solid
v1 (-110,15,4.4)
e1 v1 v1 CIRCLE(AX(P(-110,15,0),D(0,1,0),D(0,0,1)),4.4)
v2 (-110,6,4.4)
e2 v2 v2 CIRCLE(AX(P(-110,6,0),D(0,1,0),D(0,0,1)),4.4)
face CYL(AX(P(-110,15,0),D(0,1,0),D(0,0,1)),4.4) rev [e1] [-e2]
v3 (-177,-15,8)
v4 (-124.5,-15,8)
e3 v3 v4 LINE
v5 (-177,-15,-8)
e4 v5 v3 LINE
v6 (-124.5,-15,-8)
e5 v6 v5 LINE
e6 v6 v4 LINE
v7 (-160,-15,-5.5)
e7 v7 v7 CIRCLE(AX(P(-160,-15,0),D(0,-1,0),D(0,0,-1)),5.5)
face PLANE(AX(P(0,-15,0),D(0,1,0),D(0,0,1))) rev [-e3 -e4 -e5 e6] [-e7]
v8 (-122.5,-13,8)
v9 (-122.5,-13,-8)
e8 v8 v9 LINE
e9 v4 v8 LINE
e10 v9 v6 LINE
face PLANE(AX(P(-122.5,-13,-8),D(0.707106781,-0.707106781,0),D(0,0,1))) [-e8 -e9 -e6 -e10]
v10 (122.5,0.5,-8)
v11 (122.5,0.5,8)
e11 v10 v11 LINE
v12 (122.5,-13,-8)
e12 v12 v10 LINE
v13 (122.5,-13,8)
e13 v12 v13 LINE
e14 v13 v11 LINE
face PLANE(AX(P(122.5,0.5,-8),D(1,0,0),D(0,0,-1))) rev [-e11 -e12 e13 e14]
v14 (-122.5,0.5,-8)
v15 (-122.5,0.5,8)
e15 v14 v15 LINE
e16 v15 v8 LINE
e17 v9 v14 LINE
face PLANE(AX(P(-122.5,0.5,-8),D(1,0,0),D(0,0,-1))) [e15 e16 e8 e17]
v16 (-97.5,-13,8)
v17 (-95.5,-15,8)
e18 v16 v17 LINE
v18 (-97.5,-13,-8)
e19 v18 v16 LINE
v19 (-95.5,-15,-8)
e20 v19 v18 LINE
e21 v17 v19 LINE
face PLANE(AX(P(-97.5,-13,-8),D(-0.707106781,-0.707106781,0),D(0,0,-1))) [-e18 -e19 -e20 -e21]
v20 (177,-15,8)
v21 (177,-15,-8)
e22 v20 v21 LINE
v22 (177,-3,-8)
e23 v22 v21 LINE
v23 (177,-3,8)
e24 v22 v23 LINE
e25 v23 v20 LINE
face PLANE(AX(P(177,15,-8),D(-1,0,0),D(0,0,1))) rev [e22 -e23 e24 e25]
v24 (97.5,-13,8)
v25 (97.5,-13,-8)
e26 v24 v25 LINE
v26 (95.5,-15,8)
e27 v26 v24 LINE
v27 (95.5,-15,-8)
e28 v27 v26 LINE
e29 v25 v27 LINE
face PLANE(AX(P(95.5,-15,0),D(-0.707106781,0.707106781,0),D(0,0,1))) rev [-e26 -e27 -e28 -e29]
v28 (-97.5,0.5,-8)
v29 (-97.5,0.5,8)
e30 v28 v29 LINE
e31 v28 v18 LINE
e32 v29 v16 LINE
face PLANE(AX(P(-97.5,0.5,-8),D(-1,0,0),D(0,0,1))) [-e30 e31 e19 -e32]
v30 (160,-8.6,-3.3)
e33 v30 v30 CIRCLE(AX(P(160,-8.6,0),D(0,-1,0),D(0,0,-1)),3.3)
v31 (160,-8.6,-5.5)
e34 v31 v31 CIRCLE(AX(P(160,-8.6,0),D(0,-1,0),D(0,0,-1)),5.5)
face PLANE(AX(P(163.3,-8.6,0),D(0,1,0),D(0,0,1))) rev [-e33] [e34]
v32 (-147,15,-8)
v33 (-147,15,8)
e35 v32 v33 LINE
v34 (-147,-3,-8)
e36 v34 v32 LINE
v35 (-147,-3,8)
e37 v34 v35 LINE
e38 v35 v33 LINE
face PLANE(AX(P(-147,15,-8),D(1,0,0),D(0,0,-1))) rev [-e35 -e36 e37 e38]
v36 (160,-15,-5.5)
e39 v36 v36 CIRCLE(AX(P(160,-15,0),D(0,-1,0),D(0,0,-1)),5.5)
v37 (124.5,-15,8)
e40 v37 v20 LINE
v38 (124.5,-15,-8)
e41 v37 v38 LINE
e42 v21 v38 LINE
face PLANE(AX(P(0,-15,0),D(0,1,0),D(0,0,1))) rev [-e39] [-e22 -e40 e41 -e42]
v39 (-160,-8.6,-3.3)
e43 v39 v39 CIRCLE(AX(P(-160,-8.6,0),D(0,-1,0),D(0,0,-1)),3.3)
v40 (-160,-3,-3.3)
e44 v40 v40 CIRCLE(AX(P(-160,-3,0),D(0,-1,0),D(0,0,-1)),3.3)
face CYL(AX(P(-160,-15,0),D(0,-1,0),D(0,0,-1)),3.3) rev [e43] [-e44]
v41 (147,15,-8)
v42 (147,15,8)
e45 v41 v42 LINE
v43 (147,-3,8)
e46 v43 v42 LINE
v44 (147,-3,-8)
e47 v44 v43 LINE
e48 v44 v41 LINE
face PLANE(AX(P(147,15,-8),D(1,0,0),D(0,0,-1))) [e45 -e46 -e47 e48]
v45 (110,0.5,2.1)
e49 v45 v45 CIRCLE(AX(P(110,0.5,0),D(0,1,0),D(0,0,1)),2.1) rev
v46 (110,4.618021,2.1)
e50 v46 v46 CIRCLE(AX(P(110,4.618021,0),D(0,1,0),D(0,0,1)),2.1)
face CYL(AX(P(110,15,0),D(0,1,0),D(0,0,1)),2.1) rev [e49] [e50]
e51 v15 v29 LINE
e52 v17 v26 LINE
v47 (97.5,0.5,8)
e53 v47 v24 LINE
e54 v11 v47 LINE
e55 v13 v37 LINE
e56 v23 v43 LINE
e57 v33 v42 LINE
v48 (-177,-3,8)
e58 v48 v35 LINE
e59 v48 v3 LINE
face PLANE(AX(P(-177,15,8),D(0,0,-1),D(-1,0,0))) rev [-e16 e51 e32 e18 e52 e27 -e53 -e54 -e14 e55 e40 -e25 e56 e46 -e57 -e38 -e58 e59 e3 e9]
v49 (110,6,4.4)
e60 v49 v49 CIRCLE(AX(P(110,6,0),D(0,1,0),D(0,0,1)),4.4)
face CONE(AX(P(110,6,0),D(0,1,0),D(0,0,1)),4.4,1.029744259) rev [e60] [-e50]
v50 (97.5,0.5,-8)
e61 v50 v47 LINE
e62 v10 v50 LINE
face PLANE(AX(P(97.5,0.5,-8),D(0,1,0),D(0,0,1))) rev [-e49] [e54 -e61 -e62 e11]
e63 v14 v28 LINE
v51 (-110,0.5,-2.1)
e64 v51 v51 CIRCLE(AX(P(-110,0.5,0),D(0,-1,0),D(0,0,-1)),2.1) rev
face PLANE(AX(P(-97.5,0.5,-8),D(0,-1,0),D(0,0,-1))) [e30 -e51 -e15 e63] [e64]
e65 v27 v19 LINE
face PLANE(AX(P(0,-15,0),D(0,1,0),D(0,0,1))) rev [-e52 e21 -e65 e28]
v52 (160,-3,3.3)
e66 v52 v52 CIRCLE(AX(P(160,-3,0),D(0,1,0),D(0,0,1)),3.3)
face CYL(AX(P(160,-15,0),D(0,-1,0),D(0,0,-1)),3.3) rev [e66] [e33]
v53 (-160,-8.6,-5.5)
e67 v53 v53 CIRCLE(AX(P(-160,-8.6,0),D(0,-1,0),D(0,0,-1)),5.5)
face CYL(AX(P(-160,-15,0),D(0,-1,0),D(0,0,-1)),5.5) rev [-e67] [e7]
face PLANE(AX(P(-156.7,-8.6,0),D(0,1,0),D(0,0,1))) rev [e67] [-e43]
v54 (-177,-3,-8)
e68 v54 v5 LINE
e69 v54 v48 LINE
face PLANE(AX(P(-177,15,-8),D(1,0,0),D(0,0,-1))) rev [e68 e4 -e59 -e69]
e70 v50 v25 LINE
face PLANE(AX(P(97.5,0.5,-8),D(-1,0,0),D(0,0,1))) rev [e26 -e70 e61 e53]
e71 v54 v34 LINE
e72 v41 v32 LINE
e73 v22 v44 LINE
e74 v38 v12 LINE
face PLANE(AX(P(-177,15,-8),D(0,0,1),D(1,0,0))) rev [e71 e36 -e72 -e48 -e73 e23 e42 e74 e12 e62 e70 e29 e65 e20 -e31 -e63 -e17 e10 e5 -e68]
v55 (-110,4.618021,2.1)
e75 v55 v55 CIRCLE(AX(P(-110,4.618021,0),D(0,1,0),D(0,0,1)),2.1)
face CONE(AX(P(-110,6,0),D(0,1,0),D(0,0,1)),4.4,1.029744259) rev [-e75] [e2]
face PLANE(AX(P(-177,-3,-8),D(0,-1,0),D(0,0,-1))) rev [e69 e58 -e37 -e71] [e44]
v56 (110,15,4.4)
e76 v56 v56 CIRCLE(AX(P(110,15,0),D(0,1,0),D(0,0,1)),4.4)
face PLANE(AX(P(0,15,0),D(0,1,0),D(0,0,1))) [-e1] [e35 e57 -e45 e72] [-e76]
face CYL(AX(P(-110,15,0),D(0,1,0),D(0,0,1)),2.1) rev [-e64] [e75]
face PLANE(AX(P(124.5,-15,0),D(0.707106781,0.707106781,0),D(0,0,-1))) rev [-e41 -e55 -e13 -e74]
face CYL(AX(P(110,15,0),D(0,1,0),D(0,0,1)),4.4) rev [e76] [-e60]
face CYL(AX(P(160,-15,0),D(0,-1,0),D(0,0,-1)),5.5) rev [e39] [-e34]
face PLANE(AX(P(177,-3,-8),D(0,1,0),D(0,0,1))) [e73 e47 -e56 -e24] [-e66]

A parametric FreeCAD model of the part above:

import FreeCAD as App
import Part
import Sketcher

V = App.Vector
Q = App.Units.Quantity


def edges_at(feature, points):
    """Names of the edges that pass closest to the given points."""
    edges = feature.Shape.Edges
    near = lambda p: min(range(len(edges)), key=lambda i: edges[i].distToShape(Part.Vertex(*p))[0])
    return sorted({f"Edge{near(p) + 1}" for p in points})


def add_polygon(sketch, points):
    """Adds a closed chain of lines whose ends are joined by coincident constraints."""
    first, n = sketch.GeometryCount, len(points)
    for a, b in zip(points, points[1:] + points[:1]):
        sketch.addGeometry(Part.LineSegment(App.Vector(*a, 0), App.Vector(*b, 0)), False)
    for i in range(n):
        sketch.addConstraint(Sketcher.Constraint("Coincident", first + i, 2, first + (i + 1) % n, 1))

doc = App.newDocument("Part")
params = doc.addObject("Spreadsheet::Sheet", "Params")
for row, (alias, value) in enumerate([
    ("sketch1_width", "354 mm"),
    ("sketch1_height", "16 mm"),
    ("pad1_length", "30 mm"),
    ("sketch2_diameter", "4.2 mm"),
    ("hole_diameter", "4.2 mm"),
    ("sketch3_width", "25 mm"),
    ("chamfer_size", "2 mm"),
    ("chamfer2_size", "2 mm"),
    ("sketch4_diameter", "8.8 mm"),
    ("hole2_diameter", "8.8 mm"),
    ("hole2_depth", "9 mm"),
    ("sketch5_width", "30 mm"),
    ("sketch5_height", "18 mm"),
    ("sketch6_diameter", "6.6 mm"),
    ("hole3_diameter", "6.6 mm"),
    ("hole3_cbore_diameter", "11 mm"),
    ("hole3_cbore_depth", "6.4 mm"),
], start=1):
    params.set(f"A{row}", alias)
    params.set(f"B{row}", "=" + value)
    params.setAlias(f"B{row}", alias)

body = doc.addObject("PartDesign::Body", "Body")

sketch1 = doc.addObject("Sketcher::SketchObject", "Sketch")
body.addObject(sketch1)
sketch1.AttachmentSupport = (doc.XZ_Plane, [""])
sketch1.MapMode = "FlatFace"
add_polygon(sketch1, [(-177, -8), (-177, 8), (177, 8), (177, -8)])
sketch1.addConstraint([
    Sketcher.Constraint("Vertical", 0),
    Sketcher.Constraint("Horizontal", 1),
    Sketcher.Constraint("Vertical", 2),
    Sketcher.Constraint("Horizontal", 3),
    Sketcher.Constraint("Symmetric", 0, 2, 2, 2, -1, 1),
    Sketcher.Constraint("DistanceX", 1, 1, 1, 2, Q("354 mm")),
    Sketcher.Constraint("DistanceY", 0, 1, 0, 2, Q("16 mm")),
])
sketch1.setExpression("Constraints[9]", "Params.sketch1_width")
sketch1.setExpression("Constraints[10]", "Params.sketch1_height")
pad1 = doc.addObject("PartDesign::Pad", "Pad")
body.addObject(pad1)
pad1.Profile = sketch1
pad1.setExpression("Length", "Params.pad1_length")
pad1.Midplane = True

sketch2 = doc.addObject("Sketcher::SketchObject", "Sketch001")
body.addObject(sketch2)
sketch2.AttachmentSupport = (doc.XZ_Plane, [""])
sketch2.MapMode = "FlatFace"
sketch2.AttachmentOffset = App.Placement(V(0, 0, -15), App.Rotation())
sketch2.addGeometry([
    Part.Circle(V(-110, 0, 0), V(0, 0, 1), 2.1),
    Part.Circle(V(110, 0, 0), V(0, 0, 1), 2.1),
], False)
sketch2.addConstraint([
    Sketcher.Constraint("Equal", 0, 1),
    Sketcher.Constraint("Symmetric", 0, 3, 1, 3, -1, 1),
    Sketcher.Constraint("PointOnObject", 0, 3, -1),
    Sketcher.Constraint("Diameter", 0, Q("4.2 mm")),
    Sketcher.Constraint("DistanceX", 0, 3, -1, 1, Q("110 mm")),
])
sketch2.setExpression("Constraints[3]", "Params.sketch2_diameter")
doc.recompute()
hole = doc.addObject("PartDesign::Hole", "Hole")
body.addObject(hole)
hole.Profile = sketch2
hole.ThreadType = "None"
hole.setExpression("Diameter", "Params.hole_diameter")
hole.DepthType = "ThroughAll"
hole.Reversed = True

sketch3 = doc.addObject("Sketcher::SketchObject", "Sketch002")
body.addObject(sketch3)
sketch3.AttachmentSupport = (doc.XY_Plane, [""])
sketch3.MapMode = "FlatFace"
sketch3.AttachmentOffset = App.Placement(V(0, 0, 8), App.Rotation())
add_polygon(sketch3, [(97.5, 0.5), (97.5, -26.547819), (122.5, -26.547819), (122.5, 0.5)])
sketch3.addConstraint([
    Sketcher.Constraint("Vertical", 0),
    Sketcher.Constraint("Horizontal", 1),
    Sketcher.Constraint("Vertical", 2),
    Sketcher.Constraint("Horizontal", 3),
    Sketcher.Constraint("DistanceX", 1, 1, 1, 2, Q("25 mm")),
    Sketcher.Constraint("DistanceX", -1, 1, 0, 2, Q("97.5 mm")),
    Sketcher.Constraint("DistanceY", -1, 1, 2, 2, Q("0.5 mm")),
    Sketcher.Constraint("DistanceY", 0, 2, 0, 1, Q("27.047819 mm")),
])
sketch3.setExpression("Constraints[8]", "Params.sketch3_width")
pocket1 = doc.addObject("PartDesign::Pocket", "Pocket")
body.addObject(pocket1)
pocket1.Profile = sketch3
pocket1.Type = "ThroughAll"
doc.recompute()

chamfer = doc.addObject("PartDesign::Chamfer", "Chamfer")
body.addObject(chamfer)
chamfer.Base = (pocket1, edges_at(pocket1, [(122.5, -15, 0), (97.5, -15, 0)]))
chamfer.setExpression("Size", "Params.chamfer_size")
doc.recompute()

mirrored = doc.addObject("PartDesign::Mirrored", "Mirrored")
body.addObject(mirrored)
mirrored.Originals = [pocket1]
mirrored.MirrorPlane = (doc.YZ_Plane, [""])
body.Tip = mirrored
doc.recompute()

chamfer2 = doc.addObject("PartDesign::Chamfer", "Chamfer001")
body.addObject(chamfer2)
chamfer2.Base = (mirrored, edges_at(mirrored, [(-122.5, -15, 0), (-97.5, -15, 0)]))
chamfer2.setExpression("Size", "Params.chamfer2_size")

sketch4 = doc.addObject("Sketcher::SketchObject", "Sketch003")
body.addObject(sketch4)
sketch4.AttachmentSupport = (doc.XZ_Plane, [""])
sketch4.MapMode = "FlatFace"
sketch4.AttachmentOffset = App.Placement(V(0, 0, -15), App.Rotation())
sketch4.addGeometry([
    Part.Circle(V(-110, 0, 0), V(0, 0, 1), 4.4),
    Part.Circle(V(110, 0, 0), V(0, 0, 1), 4.4),
], False)
sketch4.addConstraint([
    Sketcher.Constraint("Equal", 0, 1),
    Sketcher.Constraint("Symmetric", 0, 3, 1, 3, -1, 1),
    Sketcher.Constraint("PointOnObject", 0, 3, -1),
    Sketcher.Constraint("Diameter", 0, Q("8.8 mm")),
    Sketcher.Constraint("DistanceX", 0, 3, -1, 1, Q("110 mm")),
])
sketch4.setExpression("Constraints[3]", "Params.sketch4_diameter")
doc.recompute()
hole2 = doc.addObject("PartDesign::Hole", "Hole001")
body.addObject(hole2)
hole2.Profile = sketch4
hole2.ThreadType = "None"
hole2.setExpression("Diameter", "Params.hole2_diameter")
hole2.DepthType = "Dimension"
hole2.setExpression("Depth", "Params.hole2_depth")
hole2.DrillPoint = "Angled"
hole2.DrillPointAngle = 118
hole2.Reversed = True

sketch5 = doc.addObject("Sketcher::SketchObject", "Sketch004")
body.addObject(sketch5)
sketch5.AttachmentSupport = (doc.XY_Plane, [""])
sketch5.MapMode = "FlatFace"
sketch5.AttachmentOffset = App.Placement(V(0, 0, 8), App.Rotation())
add_polygon(sketch5, [(-177, 15), (-177, -3), (-147, -3), (-147, 15)])
sketch5.addConstraint([
    Sketcher.Constraint("Vertical", 0),
    Sketcher.Constraint("Horizontal", 1),
    Sketcher.Constraint("Vertical", 2),
    Sketcher.Constraint("Horizontal", 3),
    Sketcher.Constraint("DistanceX", 1, 1, 1, 2, Q("30 mm")),
    Sketcher.Constraint("DistanceY", 0, 2, 0, 1, Q("18 mm")),
    Sketcher.Constraint("DistanceX", 0, 2, -1, 1, Q("177 mm")),
    Sketcher.Constraint("DistanceY", 0, 2, -1, 1, Q("3 mm")),
])
sketch5.setExpression("Constraints[8]", "Params.sketch5_width")
sketch5.setExpression("Constraints[9]", "Params.sketch5_height")
pocket2 = doc.addObject("PartDesign::Pocket", "Pocket001")
body.addObject(pocket2)
pocket2.Profile = sketch5
pocket2.Type = "ThroughAll"
doc.recompute()

mirrored2 = doc.addObject("PartDesign::Mirrored", "Mirrored001")
body.addObject(mirrored2)
mirrored2.Originals = [pocket2]
mirrored2.MirrorPlane = (doc.YZ_Plane, [""])
body.Tip = mirrored2

sketch6 = doc.addObject("Sketcher::SketchObject", "Sketch005")
body.addObject(sketch6)
sketch6.AttachmentSupport = (doc.XZ_Plane, [""])
sketch6.MapMode = "FlatFace"
sketch6.AttachmentOffset = App.Placement(V(0, 0, 15), App.Rotation())
sketch6.addGeometry([
    Part.Circle(V(160, 0, 0), V(0, 0, 1), 3.3),
    Part.Circle(V(-160, 0, 0), V(0, 0, 1), 3.3),
], False)
sketch6.addConstraint([
    Sketcher.Constraint("Equal", 0, 1),
    Sketcher.Constraint("Symmetric", 0, 3, 1, 3, -1, 1),
    Sketcher.Constraint("PointOnObject", 0, 3, -1),
    Sketcher.Constraint("Diameter", 0, Q("6.6 mm")),
    Sketcher.Constraint("DistanceX", -1, 1, 0, 3, Q("160 mm")),
])
sketch6.setExpression("Constraints[3]", "Params.sketch6_diameter")
doc.recompute()
hole3 = doc.addObject("PartDesign::Hole", "Hole002")
body.addObject(hole3)
hole3.Profile = sketch6
hole3.ThreadType = "None"
hole3.setExpression("Diameter", "Params.hole3_diameter")
hole3.DepthType = "ThroughAll"
hole3.HoleCutType = "Counterbore"
hole3.setExpression("HoleCutDiameter", "Params.hole3_cbore_diameter")
hole3.setExpression("HoleCutDepth", "Params.hole3_cbore_depth")

doc.recompute()
